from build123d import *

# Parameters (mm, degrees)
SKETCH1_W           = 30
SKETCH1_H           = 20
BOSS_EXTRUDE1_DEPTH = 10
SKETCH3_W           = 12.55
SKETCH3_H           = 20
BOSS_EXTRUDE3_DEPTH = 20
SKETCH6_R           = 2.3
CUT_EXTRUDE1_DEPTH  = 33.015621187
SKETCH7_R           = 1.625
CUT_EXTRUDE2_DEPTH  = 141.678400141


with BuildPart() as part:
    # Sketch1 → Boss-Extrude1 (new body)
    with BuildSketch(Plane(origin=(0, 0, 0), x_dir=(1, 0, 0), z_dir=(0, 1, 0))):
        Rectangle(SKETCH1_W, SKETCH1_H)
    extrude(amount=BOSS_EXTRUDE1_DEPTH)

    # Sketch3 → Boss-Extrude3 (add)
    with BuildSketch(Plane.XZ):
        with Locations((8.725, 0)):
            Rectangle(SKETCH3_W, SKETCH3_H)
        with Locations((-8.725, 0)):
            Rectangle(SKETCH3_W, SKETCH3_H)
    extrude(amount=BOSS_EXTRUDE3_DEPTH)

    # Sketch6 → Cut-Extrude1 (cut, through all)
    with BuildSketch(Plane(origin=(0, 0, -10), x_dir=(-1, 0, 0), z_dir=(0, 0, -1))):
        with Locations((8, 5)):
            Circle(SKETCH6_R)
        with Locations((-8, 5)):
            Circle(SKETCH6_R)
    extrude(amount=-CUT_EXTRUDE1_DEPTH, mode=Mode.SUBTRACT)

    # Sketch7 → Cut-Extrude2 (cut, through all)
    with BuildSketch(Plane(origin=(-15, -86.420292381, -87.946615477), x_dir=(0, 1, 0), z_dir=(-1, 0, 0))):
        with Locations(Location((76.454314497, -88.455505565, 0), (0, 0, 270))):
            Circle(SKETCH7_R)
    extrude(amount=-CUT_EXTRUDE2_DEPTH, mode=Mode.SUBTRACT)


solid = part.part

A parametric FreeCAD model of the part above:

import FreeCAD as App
import Part
import Sketcher

V = App.Vector
Q = App.Units.Quantity

doc = App.newDocument("Part")
body = doc.addObject("PartDesign::Body", "Body")

# Sketch on XZ plane
sketch1 = body.newObject("Sketcher::SketchObject", "Sketch")
sketch1.AttachmentSupport = (doc.getObject("XZ_Plane"), [""])
sketch1.MapMode = "FlatFace"
sketch1.addGeometry([
    Part.LineSegment(V(-15, -10, 0), V(-15, 10, 0)),
    Part.LineSegment(V(-15, 10, 0), V(15, 10, 0)),
    Part.LineSegment(V(15, 10, 0), V(15, -10, 0)),
    Part.LineSegment(V(15, -10, 0), V(-15, -10, 0)),
], False)
sketch1.addConstraint([
    Sketcher.Constraint("Coincident", 0, 2, 1, 1),
    Sketcher.Constraint("Coincident", 1, 2, 2, 1),
    Sketcher.Constraint("Coincident", 2, 2, 3, 1),
    Sketcher.Constraint("Coincident", 3, 2, 0, 1),
    Sketcher.Constraint("Vertical", 0),
    Sketcher.Constraint("Horizontal", 1),
    Sketcher.Constraint("Vertical", 2),
    Sketcher.Constraint("Horizontal", 3),
    Sketcher.Constraint("Symmetric", 0, 2, 2, 2, -1, 1),
    Sketcher.Constraint("DistanceX", 1, 1, 1, 2, Q("30 mm")),
    Sketcher.Constraint("DistanceY", 0, 1, 0, 2, Q("20 mm")),
])
pad1 = body.newObject("PartDesign::Pad", "Pad")
pad1.Profile = sketch1
pad1.Length = 10
pad1.Reversed = True

# Sketch on XZ plane
sketch2 = body.newObject("Sketcher::SketchObject", "Sketch001")
sketch2.AttachmentSupport = (doc.getObject("XZ_Plane"), [""])
sketch2.MapMode = "FlatFace"
sketch2.addGeometry([
    Part.LineSegment(V(2, 10, 0), V(2, -10, 0)),  # 0
    Part.LineSegment(V(2, -10, 0), V(15, -10, 0)),  # 1
    Part.LineSegment(V(15, -10, 0), V(15, 10, 0)),  # 2
    Part.LineSegment(V(15, 10, 0), V(2, 10, 0)),  # 3
    Part.LineSegment(V(-15, 10, 0), V(-15, -10, 0)),  # 4
    Part.LineSegment(V(-15, -10, 0), V(-2, -10, 0)),  # 5
    Part.LineSegment(V(-2, -10, 0), V(-2, 10, 0)),  # 6
    Part.LineSegment(V(-2, 10, 0), V(-15, 10, 0)),  # 7
], False)
sketch2.addConstraint([
    Sketcher.Constraint("Coincident", 0, 2, 1, 1),
    Sketcher.Constraint("Coincident", 1, 2, 2, 1),
    Sketcher.Constraint("Coincident", 2, 2, 3, 1),
    Sketcher.Constraint("Coincident", 3, 2, 0, 1),
    Sketcher.Constraint("Coincident", 4, 2, 5, 1),
    Sketcher.Constraint("Coincident", 5, 2, 6, 1),
    Sketcher.Constraint("Coincident", 6, 2, 7, 1),
    Sketcher.Constraint("Coincident", 7, 2, 4, 1),
    Sketcher.Constraint("Vertical", 0),
    Sketcher.Constraint("Horizontal", 1),
    Sketcher.Constraint("Vertical", 2),
    Sketcher.Constraint("Horizontal", 3),
    Sketcher.Constraint("Vertical", 4),
    Sketcher.Constraint("Horizontal", 5),
    Sketcher.Constraint("Vertical", 6),
    Sketcher.Constraint("Horizontal", 7),
    Sketcher.Constraint("Symmetric", 2, 2, 4, 2, -1, 1),
    Sketcher.Constraint("Symmetric", 0, 2, 6, 2, -1, 1),
    Sketcher.Constraint("Horizontal", 1, 2, 4, 2),
    Sketcher.Constraint("DistanceY", 0, 2, 0, 1, Q("20 mm")),
    Sketcher.Constraint("DistanceX", -1, 1, 1, 2, Q("15 mm")),
    Sketcher.Constraint("DistanceX", 1, 1, 1, 2, Q("12.55 mm")),
])
pad2 = body.newObject("PartDesign::Pad", "Pad001")
pad2.Profile = sketch2
pad2.Length = 20

# Sketch on XY plane
sketch3 = body.newObject("Sketcher::SketchObject", "Sketch002")
sketch3.AttachmentSupport = (doc.getObject("XY_Plane"), [""])
sketch3.MapMode = "FlatFace"
sketch3.AttachmentOffset = App.Placement(V(0, 0, -10), App.Rotation())
sketch3.addGeometry([
    Part.Circle(V(-8, 5, 0), V(0, 0, 1), 2.3),
    Part.Circle(V(8, 5, 0), V(0, 0, 1), 2.3),
], False)
sketch3.addConstraint([
    Sketcher.Constraint("Equal", 0, 1),
    Sketcher.Constraint("Symmetric", 0, 3, 1, 3, -2),
    Sketcher.Constraint("Diameter", 0, Q("4.6 mm")),
    Sketcher.Constraint("DistanceX", 0, 3, -1, 1, Q("8 mm")),
    Sketcher.Constraint("DistanceY", -1, 1, 0, 3, Q("5 mm")),
])
pocket1 = body.newObject("PartDesign::Pocket", "Pocket")
pocket1.Profile = sketch3
pocket1.Type = "ThroughAll"
pocket1.Reversed = True

# Sketch on YZ plane
sketch4 = body.newObject("Sketcher::SketchObject", "Sketch003")
sketch4.AttachmentSupport = (doc.getObject("YZ_Plane"), [""])
sketch4.MapMode = "FlatFace"
sketch4.AttachmentOffset = App.Placement(V(0, 0, -15), App.Rotation())
sketch4.addGeometry(Part.Circle(V(-10, 0.5, 0), V(0, 0, 1), 1.6), False)
sketch4.addConstraint([
    Sketcher.Constraint("Diameter", 0, Q("3.25 mm")),
    Sketcher.Constraint("DistanceY", -1, 1, 0, 3, Q("0.50889 mm")),
    Sketcher.Constraint("DistanceX", 0, 3, -1, 1, Q("9.965978 mm")),
])
pocket2 = body.newObject("PartDesign::Pocket", "Pocket001")
pocket2.Profile = sketch4
pocket2.Type = "ThroughAll"
pocket2.Reversed = True

doc.recompute()
